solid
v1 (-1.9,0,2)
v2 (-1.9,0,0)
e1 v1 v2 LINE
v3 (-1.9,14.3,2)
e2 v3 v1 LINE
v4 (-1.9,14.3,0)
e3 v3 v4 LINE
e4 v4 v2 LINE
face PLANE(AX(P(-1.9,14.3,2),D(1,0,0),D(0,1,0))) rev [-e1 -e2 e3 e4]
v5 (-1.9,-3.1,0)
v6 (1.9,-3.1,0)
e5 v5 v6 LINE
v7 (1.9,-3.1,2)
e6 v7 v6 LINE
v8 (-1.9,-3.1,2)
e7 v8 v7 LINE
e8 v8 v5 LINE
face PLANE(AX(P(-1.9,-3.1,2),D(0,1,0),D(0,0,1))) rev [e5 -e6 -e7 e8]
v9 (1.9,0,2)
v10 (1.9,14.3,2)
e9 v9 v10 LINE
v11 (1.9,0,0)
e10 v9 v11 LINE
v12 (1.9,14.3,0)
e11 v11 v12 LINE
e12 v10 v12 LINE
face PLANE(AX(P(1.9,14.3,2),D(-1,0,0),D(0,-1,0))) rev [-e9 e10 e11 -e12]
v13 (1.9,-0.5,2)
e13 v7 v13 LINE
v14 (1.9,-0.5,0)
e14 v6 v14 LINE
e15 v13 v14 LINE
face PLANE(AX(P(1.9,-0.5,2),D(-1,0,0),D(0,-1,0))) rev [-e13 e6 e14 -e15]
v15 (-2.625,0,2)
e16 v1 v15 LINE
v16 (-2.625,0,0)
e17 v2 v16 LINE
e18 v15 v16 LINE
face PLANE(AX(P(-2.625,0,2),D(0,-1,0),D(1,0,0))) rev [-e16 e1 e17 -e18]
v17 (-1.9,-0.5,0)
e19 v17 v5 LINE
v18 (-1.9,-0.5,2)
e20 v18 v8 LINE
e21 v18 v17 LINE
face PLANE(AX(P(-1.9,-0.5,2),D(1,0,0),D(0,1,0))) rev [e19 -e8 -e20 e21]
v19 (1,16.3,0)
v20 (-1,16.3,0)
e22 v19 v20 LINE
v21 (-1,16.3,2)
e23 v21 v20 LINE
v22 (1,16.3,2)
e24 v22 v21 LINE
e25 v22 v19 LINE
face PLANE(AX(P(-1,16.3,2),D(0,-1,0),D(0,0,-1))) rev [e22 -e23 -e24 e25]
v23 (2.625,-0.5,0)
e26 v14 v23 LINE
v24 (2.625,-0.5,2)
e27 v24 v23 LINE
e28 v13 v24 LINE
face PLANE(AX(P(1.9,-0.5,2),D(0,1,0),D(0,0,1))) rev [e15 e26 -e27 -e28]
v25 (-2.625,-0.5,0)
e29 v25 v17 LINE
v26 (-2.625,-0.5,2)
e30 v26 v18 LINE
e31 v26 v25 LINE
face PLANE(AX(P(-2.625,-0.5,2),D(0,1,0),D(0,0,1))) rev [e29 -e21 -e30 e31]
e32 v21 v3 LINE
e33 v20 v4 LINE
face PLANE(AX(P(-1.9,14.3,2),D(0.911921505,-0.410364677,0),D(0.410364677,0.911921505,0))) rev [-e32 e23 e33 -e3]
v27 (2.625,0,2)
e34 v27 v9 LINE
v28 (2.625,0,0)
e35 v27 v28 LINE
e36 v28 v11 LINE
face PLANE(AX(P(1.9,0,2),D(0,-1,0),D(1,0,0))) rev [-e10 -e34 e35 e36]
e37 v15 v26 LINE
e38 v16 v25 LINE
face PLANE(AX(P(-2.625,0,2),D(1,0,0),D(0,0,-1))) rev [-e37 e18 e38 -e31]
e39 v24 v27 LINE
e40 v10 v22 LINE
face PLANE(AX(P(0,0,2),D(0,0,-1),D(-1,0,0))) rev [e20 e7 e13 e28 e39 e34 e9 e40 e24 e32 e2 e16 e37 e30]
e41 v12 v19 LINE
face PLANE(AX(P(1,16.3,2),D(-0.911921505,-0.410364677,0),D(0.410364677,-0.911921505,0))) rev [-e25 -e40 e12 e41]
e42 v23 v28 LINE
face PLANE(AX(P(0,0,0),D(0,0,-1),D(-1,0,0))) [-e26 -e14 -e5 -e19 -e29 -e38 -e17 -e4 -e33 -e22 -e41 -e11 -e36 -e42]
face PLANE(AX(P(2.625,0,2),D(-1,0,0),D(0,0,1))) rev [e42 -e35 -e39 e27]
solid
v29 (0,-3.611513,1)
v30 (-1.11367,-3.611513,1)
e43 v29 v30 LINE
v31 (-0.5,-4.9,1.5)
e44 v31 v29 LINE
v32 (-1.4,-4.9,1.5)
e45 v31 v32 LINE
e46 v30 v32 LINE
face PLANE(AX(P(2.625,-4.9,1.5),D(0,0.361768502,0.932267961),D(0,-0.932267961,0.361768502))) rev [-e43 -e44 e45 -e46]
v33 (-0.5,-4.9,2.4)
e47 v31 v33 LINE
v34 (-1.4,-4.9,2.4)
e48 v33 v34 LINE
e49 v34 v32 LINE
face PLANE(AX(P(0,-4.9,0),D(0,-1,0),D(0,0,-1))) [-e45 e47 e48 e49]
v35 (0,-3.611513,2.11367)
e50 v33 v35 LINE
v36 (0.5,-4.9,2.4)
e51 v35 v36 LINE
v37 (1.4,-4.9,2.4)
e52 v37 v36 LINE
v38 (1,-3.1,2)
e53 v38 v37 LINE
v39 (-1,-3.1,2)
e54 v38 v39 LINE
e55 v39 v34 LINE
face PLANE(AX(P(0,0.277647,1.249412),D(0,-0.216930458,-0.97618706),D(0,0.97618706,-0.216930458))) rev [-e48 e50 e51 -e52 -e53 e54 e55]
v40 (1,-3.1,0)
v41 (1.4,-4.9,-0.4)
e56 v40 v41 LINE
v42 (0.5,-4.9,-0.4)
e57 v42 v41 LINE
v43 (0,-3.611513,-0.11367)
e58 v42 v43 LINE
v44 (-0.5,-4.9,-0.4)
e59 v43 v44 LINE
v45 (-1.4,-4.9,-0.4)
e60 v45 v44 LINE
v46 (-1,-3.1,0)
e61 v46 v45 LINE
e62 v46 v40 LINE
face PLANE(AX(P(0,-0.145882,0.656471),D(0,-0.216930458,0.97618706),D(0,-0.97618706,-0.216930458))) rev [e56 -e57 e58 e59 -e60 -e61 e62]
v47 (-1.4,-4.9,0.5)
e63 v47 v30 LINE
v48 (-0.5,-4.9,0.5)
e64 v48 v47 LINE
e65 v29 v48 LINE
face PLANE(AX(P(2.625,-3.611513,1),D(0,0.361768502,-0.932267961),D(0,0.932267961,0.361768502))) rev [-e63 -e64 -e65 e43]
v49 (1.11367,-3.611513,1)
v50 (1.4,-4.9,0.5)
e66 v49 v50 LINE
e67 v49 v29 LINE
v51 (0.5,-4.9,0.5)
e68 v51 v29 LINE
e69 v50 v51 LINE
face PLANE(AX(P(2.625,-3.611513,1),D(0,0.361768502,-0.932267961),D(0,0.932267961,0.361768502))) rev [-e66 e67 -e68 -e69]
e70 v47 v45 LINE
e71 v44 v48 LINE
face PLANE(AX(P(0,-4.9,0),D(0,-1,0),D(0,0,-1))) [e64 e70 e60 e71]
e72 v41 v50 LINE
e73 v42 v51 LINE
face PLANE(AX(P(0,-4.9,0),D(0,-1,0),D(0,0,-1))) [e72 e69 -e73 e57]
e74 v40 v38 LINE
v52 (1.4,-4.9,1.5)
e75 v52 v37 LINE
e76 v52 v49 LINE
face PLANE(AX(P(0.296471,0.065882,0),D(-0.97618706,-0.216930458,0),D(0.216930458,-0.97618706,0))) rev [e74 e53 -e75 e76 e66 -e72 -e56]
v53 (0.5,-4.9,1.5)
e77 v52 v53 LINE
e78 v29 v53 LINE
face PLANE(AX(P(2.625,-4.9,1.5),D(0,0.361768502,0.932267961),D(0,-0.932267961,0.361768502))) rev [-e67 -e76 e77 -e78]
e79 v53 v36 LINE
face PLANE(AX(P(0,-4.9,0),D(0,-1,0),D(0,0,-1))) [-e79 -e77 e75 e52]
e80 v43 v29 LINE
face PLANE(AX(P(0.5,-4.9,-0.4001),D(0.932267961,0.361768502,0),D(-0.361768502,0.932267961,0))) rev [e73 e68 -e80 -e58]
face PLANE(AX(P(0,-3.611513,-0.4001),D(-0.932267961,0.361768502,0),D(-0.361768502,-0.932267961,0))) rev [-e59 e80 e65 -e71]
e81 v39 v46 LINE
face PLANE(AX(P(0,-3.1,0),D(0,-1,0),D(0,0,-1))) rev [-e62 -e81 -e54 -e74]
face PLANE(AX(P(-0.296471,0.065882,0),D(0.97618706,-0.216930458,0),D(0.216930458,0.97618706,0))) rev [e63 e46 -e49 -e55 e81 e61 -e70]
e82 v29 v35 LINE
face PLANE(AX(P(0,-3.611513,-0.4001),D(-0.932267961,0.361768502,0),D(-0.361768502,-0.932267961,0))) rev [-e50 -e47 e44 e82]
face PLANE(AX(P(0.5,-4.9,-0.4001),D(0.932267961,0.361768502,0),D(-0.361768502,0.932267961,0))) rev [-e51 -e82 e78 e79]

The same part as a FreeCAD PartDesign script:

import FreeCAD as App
import Part
import Sketcher
from FreeCAD import Vector
Q = App.Units.Quantity


def add_polygon(sketch, points):
    """Adds a closed chain of lines whose ends are joined by coincident constraints."""
    first, n = sketch.GeometryCount, len(points)
    for a, b in zip(points, points[1:] + points[:1]):
        sketch.addGeometry(Part.LineSegment(App.Vector(*a, 0), App.Vector(*b, 0)), False)
    for i in range(n):
        sketch.addConstraint(Sketcher.Constraint("Coincident", first + i, 2, first + (i + 1) % n, 1))

doc = App.newDocument("Part")
body = doc.addObject("PartDesign::Body", "Body")

# Sketch on XY plane
sketch1 = body.newObject("Sketcher::SketchObject", "Sketch")
sketch1.AttachmentSupport = (doc.getObject("XY_Plane"), [""])
sketch1.MapMode = "FlatFace"
add_polygon(sketch1, [(2.625, 0), (1.9, 0), (1.9, 14.3), (1, 16.3), (-1, 16.3), (-1.9, 14.3), (-1.9, 0), (-2.625, 0), (-2.625, -0.5), (-1.9, -0.5), (-1.9, -3.1), (1.9, -3.1), (1.9, -0.5), (2.625, -0.5)])  # lines 0-13
sketch1.addConstraint(Sketcher.Constraint("Horizontal", 0))
sketch1.addConstraint(Sketcher.Constraint("Vertical", 1))
sketch1.addConstraint(Sketcher.Constraint("Horizontal", 3))
sketch1.addConstraint(Sketcher.Constraint("Vertical", 5))
sketch1.addConstraint(Sketcher.Constraint("Horizontal", 6))
sketch1.addConstraint(Sketcher.Constraint("Vertical", 7))
sketch1.addConstraint(Sketcher.Constraint("Horizontal", 8))
sketch1.addConstraint(Sketcher.Constraint("Vertical", 9))
sketch1.addConstraint(Sketcher.Constraint("Horizontal", 10))
sketch1.addConstraint(Sketcher.Constraint("Vertical", 11))
sketch1.addConstraint(Sketcher.Constraint("Horizontal", 12))
sketch1.addConstraint(Sketcher.Constraint("Vertical", 13))
sketch1.addConstraint(Sketcher.Constraint("Symmetric", 0, 2, 5, 2, -1, 1))
sketch1.addConstraint(Sketcher.Constraint("Symmetric", 8, 2, 11, 2, -2))
sketch1.addConstraint(Sketcher.Constraint("Symmetric", 6, 2, 13, 2, -2))
sketch1.addConstraint(Sketcher.Constraint("Horizontal", 1, 2, 4, 2))
sketch1.addConstraint(Sketcher.Constraint("Vertical", 5, 2, 8, 2))
sketch1.addConstraint(Sketcher.Constraint("Equal", 2, 4))
sketch1.addConstraint(Sketcher.Constraint("DistanceX", 3, 2, 3, 1, Q("2 mm")))
sketch1.addConstraint(Sketcher.Constraint("DistanceX", 10, 1, 10, 2, Q("3.8 mm")))
sketch1.addConstraint(Sketcher.Constraint("DistanceY", 1, 1, 1, 2, Q("14.3 mm")))
sketch1.addConstraint(Sketcher.Constraint("DistanceY", 7, 2, 7, 1, Q("0.5 mm")))
sketch1.addConstraint(Sketcher.Constraint("DistanceY", 9, 2, 9, 1, Q("2.6 mm")))
sketch1.addConstraint(Sketcher.Constraint("DistanceY", 1, 2, 2, 2, Q("2 mm")))
sketch1.addConstraint(Sketcher.Constraint("DistanceX", 0, 2, 0, 1, Q("0.725 mm")))
pad1 = body.newObject("PartDesign::Pad", "Pad")
pad1.Profile = sketch1
pad1.Length = 2
body2 = doc.addObject("PartDesign::Body", "Body001")

# Sketch on XZ plane
sketch2 = body2.newObject("Sketcher::SketchObject", "Sketch001")
sketch2.AttachmentSupport = (doc.getObject("XZ_Plane001"), [""])
sketch2.MapMode = "FlatFace"
sketch2.AttachmentOffset = App.Placement(Vector(0, 0, 3.1), App.Rotation())
add_polygon(sketch2, [(-1, 2), (-1, 0), (1, 0), (1, 2)])  # lines 0-3
sketch2.addConstraint(Sketcher.Constraint("Vertical", 0))
sketch2.addConstraint(Sketcher.Constraint("Horizontal", 1))
sketch2.addConstraint(Sketcher.Constraint("Vertical", 2))
sketch2.addConstraint(Sketcher.Constraint("Horizontal", 3))
sketch2.addConstraint(Sketcher.Constraint("Symmetric", 0, 2, 1, 2, -1, 1))
sketch2.addConstraint(Sketcher.Constraint("Equal", 3, 0))
sketch2.addConstraint(Sketcher.Constraint("DistanceX", 1, 1, 1, 2, Q("2 mm")))

# Sketch on XZ plane
sketch3 = body2.newObject("Sketcher::SketchObject", "Sketch002")
sketch3.AttachmentSupport = (doc.getObject("XZ_Plane001"), [""])
sketch3.MapMode = "FlatFace"
sketch3.AttachmentOffset = App.Placement(Vector(0, 0, 4.9), App.Rotation())
add_polygon(sketch3, [(1.4, -0.4), (1.4, 2.4), (-1.4, 2.4), (-1.4, -0.4)])  # lines 0-3
sketch3.addConstraint(Sketcher.Constraint("Vertical", 0))
sketch3.addConstraint(Sketcher.Constraint("Horizontal", 1))
sketch3.addConstraint(Sketcher.Constraint("Vertical", 2))
sketch3.addConstraint(Sketcher.Constraint("Horizontal", 3))
sketch3.addConstraint(Sketcher.Constraint("Equal", 3, 0))
sketch3.addConstraint(Sketcher.Constraint("DistanceX", 1, 2, 1, 1, Q("2.8 mm")))
sketch3.addConstraint(Sketcher.Constraint("DistanceX", -1, 1, 0, 2, Q("1.4 mm")))
sketch3.addConstraint(Sketcher.Constraint("DistanceY", -1, 1, 0, 2, Q("2.4 mm")))

additiveloft = body2.newObject("PartDesign::AdditiveLoft", "AdditiveLoft")
additiveloft.Profile = sketch2
additiveloft.Sections = [sketch3]

# Sketch on XY plane
sketch4 = body2.newObject("Sketcher::SketchObject", "Sketch003")
sketch4.AttachmentSupport = (doc.getObject("XY_Plane001"), [""])
sketch4.MapMode = "FlatFace"
sketch4.AttachmentOffset = App.Placement(Vector(0, 0, 1.8), App.Rotation())
add_polygon(sketch4, [(0, -3.611513), (-0.5, -4.9), (0.5, -4.9)])  # lines 0-2
sketch4.addConstraint(Sketcher.Constraint("Horizontal", 1))
sketch4.addConstraint(Sketcher.Constraint("PointOnObject", 2, 2, -2))
sketch4.addConstraint(Sketcher.Constraint("Equal", 0, 2))
sketch4.addConstraint(Sketcher.Constraint("DistanceX", 1, 1, 1, 2, Q("1 mm")))
sketch4.addConstraint(Sketcher.Constraint("DistanceY", 0, 2, -1, 1, Q("4.9 mm")))
sketch4.addConstraint(Sketcher.Constraint("Distance", 0, Q("1.382099 mm")))
pocket1 = body2.newObject("PartDesign::Pocket", "Pocket")
pocket1.Profile = sketch4
pocket1.Type = "ThroughAll"
pocket1.Midplane = True

# Sketch on YZ plane
sketch5 = body2.newObject("Sketcher::SketchObject", "Sketch004")
sketch5.AttachmentSupport = (doc.getObject("YZ_Plane001"), [""])
sketch5.MapMode = "FlatFace"
sketch5.AttachmentOffset = App.Placement(Vector(0, 0, 1.8), App.Rotation())
add_polygon(sketch5, [(-3.611513, 1), (-4.9, 0.5), (-4.9, 1.5)])  # lines 0-2
sketch5.addConstraint(Sketcher.Constraint("Vertical", 1))
sketch5.addConstraint(Sketcher.Constraint("Equal", 0, 2))
sketch5.addConstraint(Sketcher.Constraint("DistanceY", 1, 1, 1, 2, Q("1 mm")))
sketch5.addConstraint(Sketcher.Constraint("DistanceY", -1, 1, 2, 2, Q("1 mm")))
sketch5.addConstraint(Sketcher.Constraint("DistanceX", 0, 2, -1, 1, Q("4.9 mm")))
sketch5.addConstraint(Sketcher.Constraint("Distance", 0, Q("1.382099 mm")))
pocket2 = body2.newObject("PartDesign::Pocket", "Pocket001")
pocket2.Profile = sketch5
pocket2.Type = "ThroughAll"
pocket2.Midplane = True

doc.recompute()
